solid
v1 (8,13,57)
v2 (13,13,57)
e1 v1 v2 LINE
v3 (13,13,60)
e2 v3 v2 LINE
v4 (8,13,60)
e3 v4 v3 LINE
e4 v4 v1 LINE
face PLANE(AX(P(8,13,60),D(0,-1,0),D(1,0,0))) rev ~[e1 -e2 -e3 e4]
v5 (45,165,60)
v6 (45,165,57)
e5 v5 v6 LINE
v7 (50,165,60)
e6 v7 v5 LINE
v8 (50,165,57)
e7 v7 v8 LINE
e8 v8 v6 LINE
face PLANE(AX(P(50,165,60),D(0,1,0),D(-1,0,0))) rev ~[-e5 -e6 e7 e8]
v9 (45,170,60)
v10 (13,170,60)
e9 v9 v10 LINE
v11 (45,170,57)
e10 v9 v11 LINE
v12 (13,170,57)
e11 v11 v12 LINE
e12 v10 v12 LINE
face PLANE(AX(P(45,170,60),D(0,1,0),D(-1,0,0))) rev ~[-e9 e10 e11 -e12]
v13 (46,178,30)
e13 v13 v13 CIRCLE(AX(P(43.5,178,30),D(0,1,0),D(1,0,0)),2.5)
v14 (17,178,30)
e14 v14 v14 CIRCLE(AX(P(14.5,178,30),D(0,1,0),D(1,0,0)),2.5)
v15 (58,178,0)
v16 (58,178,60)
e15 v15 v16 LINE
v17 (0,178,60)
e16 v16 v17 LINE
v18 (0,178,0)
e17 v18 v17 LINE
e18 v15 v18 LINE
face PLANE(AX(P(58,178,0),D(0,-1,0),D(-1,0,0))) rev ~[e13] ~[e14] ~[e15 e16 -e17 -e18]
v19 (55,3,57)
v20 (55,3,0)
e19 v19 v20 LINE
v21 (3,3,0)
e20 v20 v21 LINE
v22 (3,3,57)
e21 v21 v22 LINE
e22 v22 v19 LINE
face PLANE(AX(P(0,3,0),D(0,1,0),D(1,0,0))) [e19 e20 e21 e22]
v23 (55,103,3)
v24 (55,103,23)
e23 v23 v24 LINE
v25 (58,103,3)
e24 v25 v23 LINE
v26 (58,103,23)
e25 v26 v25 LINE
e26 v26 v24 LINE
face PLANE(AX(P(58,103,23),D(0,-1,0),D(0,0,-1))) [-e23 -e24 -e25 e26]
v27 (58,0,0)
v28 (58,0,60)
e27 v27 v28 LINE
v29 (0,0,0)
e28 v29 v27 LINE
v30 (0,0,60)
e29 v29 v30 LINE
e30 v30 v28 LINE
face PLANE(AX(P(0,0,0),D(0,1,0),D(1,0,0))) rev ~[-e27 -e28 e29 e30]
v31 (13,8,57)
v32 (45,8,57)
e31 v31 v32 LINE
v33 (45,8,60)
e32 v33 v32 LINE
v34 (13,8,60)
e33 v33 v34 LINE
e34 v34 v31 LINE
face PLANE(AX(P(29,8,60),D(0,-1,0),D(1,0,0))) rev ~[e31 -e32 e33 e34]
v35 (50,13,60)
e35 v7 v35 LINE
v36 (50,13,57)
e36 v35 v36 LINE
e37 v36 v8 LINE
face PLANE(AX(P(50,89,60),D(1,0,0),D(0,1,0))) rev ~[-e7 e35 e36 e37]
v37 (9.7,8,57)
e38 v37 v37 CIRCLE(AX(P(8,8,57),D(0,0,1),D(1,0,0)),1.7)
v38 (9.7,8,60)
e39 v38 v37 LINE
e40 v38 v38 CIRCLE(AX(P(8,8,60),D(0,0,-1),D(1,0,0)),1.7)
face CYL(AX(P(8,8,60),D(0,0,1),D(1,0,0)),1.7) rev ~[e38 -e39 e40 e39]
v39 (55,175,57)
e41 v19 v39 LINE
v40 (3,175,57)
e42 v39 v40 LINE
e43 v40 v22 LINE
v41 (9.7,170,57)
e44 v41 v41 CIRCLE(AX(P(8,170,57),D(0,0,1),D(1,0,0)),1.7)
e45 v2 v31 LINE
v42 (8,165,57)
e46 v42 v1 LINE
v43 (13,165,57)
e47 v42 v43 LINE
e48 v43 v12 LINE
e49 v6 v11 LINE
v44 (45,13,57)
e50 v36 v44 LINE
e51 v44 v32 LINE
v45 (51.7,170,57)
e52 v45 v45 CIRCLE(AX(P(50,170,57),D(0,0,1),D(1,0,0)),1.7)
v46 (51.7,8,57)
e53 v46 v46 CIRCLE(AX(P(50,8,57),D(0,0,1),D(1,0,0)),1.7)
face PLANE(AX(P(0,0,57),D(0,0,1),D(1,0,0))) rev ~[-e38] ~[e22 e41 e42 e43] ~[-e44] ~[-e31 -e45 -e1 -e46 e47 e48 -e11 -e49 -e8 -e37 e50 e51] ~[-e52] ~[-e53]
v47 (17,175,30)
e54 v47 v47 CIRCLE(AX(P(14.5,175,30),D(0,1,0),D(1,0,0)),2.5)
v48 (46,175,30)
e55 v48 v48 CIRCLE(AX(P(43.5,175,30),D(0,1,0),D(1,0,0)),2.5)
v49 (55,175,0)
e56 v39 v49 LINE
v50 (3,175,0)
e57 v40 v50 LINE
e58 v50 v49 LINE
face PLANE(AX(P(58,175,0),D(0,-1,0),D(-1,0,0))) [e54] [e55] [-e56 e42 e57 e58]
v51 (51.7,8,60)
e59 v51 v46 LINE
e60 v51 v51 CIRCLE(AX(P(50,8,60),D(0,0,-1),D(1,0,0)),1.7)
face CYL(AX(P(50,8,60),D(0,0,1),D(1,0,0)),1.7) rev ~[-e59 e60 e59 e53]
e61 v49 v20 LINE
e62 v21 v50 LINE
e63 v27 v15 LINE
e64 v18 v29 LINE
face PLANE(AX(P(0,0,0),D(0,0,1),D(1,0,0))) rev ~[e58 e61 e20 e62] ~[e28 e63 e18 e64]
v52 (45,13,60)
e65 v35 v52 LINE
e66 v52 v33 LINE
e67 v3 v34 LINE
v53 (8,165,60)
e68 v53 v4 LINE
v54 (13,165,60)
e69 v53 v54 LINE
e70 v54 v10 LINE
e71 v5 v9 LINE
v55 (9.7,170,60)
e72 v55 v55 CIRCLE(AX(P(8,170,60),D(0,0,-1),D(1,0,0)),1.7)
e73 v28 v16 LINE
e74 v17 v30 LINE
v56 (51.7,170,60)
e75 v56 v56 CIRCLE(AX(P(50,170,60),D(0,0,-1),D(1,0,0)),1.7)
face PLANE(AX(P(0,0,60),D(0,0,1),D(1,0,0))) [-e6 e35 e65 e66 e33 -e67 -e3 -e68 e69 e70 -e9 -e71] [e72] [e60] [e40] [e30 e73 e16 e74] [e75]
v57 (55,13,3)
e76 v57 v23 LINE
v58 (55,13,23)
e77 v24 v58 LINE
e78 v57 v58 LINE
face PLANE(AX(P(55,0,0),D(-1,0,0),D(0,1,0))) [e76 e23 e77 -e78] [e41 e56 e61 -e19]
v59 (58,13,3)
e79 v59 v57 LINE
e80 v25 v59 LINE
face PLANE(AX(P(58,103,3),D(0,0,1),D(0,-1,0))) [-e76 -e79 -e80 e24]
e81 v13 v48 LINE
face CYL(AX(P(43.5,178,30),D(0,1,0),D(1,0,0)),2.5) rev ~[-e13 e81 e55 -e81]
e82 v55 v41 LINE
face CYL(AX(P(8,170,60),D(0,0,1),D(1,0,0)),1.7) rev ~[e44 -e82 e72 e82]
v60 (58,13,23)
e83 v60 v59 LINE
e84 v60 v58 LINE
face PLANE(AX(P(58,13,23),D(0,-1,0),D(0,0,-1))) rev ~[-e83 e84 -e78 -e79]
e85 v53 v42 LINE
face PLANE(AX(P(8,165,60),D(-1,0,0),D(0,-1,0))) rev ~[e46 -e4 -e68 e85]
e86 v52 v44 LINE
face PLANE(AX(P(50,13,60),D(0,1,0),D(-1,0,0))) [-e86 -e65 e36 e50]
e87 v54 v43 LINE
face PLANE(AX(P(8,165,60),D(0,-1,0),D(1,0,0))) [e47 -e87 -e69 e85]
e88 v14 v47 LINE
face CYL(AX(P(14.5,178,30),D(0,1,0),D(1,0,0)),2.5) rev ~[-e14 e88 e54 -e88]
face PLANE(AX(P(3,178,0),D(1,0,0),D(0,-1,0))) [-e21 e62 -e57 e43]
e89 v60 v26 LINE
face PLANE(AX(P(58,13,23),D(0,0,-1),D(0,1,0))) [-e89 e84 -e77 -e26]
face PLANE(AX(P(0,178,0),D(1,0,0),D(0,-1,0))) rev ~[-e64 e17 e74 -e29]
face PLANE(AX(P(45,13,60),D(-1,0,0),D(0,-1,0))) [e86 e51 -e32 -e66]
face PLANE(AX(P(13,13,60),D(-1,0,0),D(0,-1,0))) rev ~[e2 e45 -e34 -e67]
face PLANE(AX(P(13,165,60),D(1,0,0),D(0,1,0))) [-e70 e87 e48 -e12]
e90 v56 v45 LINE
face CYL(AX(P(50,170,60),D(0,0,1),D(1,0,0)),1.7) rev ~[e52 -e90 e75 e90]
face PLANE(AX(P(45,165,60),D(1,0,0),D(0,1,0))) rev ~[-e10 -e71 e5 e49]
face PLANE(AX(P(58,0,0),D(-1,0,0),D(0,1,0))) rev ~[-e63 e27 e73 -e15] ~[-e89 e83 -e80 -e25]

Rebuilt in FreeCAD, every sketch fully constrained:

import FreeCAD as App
import Part
import Sketcher
from FreeCAD import Vector
Q = App.Units.Quantity


def faces_at(feature, points):
    """Names of the faces that lie closest to the given points."""
    faces = feature.Shape.Faces
    near = lambda p: min(range(len(faces)), key=lambda i: faces[i].distToShape(Part.Vertex(*p))[0])
    return sorted({f"Face{near(p) + 1}" for p in points})

doc = App.newDocument("Part")
params = doc.addObject("Spreadsheet::Sheet", "Params")
for row, (alias, value) in enumerate([
    ("sketch1_width", "58 mm"),
    ("sketch1_height", "178 mm"),
    ("pad1_length", "60 mm"),
    ("thickness_wall", "3 mm"),
    ("sketch2_diameter", "3.4 mm"),
    ("sketch2_width", "5 mm"),
    ("sketch2_width2", "32 mm"),
    ("sketch2_height", "152 mm"),
    ("pocket1_length", "3 mm"),
    ("sketch3_height", "20 mm"),
    ("sketch3_width", "90 mm"),
    ("pocket2_length", "4 mm"),
    ("sketch4_diameter", "5 mm"),
    ("pocket3_length", "4 mm"),
], start=1):
    params.set(f"A{row}", alias)
    params.set(f"B{row}", "=" + value)
    params.setAlias(f"B{row}", alias)

body = doc.addObject("PartDesign::Body", "Body")

# Sketch on XY plane
sketch1 = body.newObject("Sketcher::SketchObject", "Sketch")
sketch1.AttachmentSupport = (doc.getObject("XY_Plane"), [""])
sketch1.MapMode = "FlatFace"
sketch1.addGeometry([
    Part.LineSegment(Vector(0, 178, 0), Vector(0, 0, 0)),
    Part.LineSegment(Vector(0, 0, 0), Vector(58, 0, 0)),
    Part.LineSegment(Vector(58, 0, 0), Vector(58, 178, 0)),
    Part.LineSegment(Vector(58, 178, 0), Vector(0, 178, 0)),
], False)
sketch1.addConstraint([
    Sketcher.Constraint("Coincident", 0, 2, 1, 1),
    Sketcher.Constraint("Coincident", 1, 2, 2, 1),
    Sketcher.Constraint("Coincident", 2, 2, 3, 1),
    Sketcher.Constraint("Coincident", 3, 2, 0, 1),
    Sketcher.Constraint("Vertical", 0),
    Sketcher.Constraint("Horizontal", 1),
    Sketcher.Constraint("Vertical", 2),
    Sketcher.Constraint("Horizontal", 3),
    Sketcher.Constraint("Coincident", 0, 2, -1, 1),
    Sketcher.Constraint("DistanceX", 1, 1, 1, 2, Q("58 mm")),
    Sketcher.Constraint("DistanceY", 0, 2, 0, 1, Q("178 mm")),
])
sketch1.setExpression("Constraints[9]", "Params.sketch1_width")
sketch1.setExpression("Constraints[10]", "Params.sketch1_height")
pad1 = body.newObject("PartDesign::Pad", "Pad")
pad1.Profile = sketch1
pad1.setExpression("Length", "Params.pad1_length")
doc.recompute()

thickness = body.newObject("PartDesign::Thickness", "Thickness")
thickness.Base = (pad1, faces_at(pad1, [(19.333, 118.667, 0)]))
thickness.setExpression("Value", "Params.thickness_wall")
thickness.Reversed = True
thickness.Join = "Intersection"

# Sketch on XY plane
sketch2 = body.newObject("Sketcher::SketchObject", "Sketch001")
sketch2.AttachmentSupport = (doc.getObject("XY_Plane"), [""])
sketch2.MapMode = "FlatFace"
sketch2.AttachmentOffset = App.Placement(Vector(0, 0, 60), App.Rotation())
sketch2.addGeometry([
    Part.Circle(Vector(8, 8, 0), Vector(0, 0, 1), 1.7),  # 0
    Part.Circle(Vector(50, 170, 0), Vector(0, 0, 1), 1.7),  # 1
    Part.LineSegment(Vector(8, 165, 0), Vector(8, 13, 0)),  # 2
    Part.LineSegment(Vector(8, 13, 0), Vector(13, 13, 0)),  # 3
    Part.LineSegment(Vector(13, 13, 0), Vector(13, 8, 0)),  # 4
    Part.LineSegment(Vector(13, 8, 0), Vector(45, 8, 0)),  # 5
    Part.LineSegment(Vector(45, 8, 0), Vector(45, 13, 0)),  # 6
    Part.LineSegment(Vector(45, 13, 0), Vector(50, 13, 0)),  # 7
    Part.LineSegment(Vector(50, 13, 0), Vector(50, 165, 0)),  # 8
    Part.LineSegment(Vector(50, 165, 0), Vector(45, 165, 0)),  # 9
    Part.LineSegment(Vector(45, 165, 0), Vector(45, 170, 0)),  # 10
    Part.LineSegment(Vector(45, 170, 0), Vector(13, 170, 0)),  # 11
    Part.LineSegment(Vector(13, 170, 0), Vector(13, 165, 0)),  # 12
    Part.LineSegment(Vector(13, 165, 0), Vector(8, 165, 0)),  # 13
    Part.Circle(Vector(8, 170, 0), Vector(0, 0, 1), 1.7),  # 14
    Part.Circle(Vector(50, 8, 0), Vector(0, 0, 1), 1.7),  # 15
], False)
sketch2.addConstraint([
    Sketcher.Constraint("Coincident", 2, 2, 3, 1),
    Sketcher.Constraint("Coincident", 3, 2, 4, 1),
    Sketcher.Constraint("Coincident", 4, 2, 5, 1),
    Sketcher.Constraint("Coincident", 5, 2, 6, 1),
    Sketcher.Constraint("Coincident", 6, 2, 7, 1),
    Sketcher.Constraint("Coincident", 7, 2, 8, 1),
    Sketcher.Constraint("Coincident", 8, 2, 9, 1),
    Sketcher.Constraint("Coincident", 9, 2, 10, 1),
    Sketcher.Constraint("Coincident", 10, 2, 11, 1),
    Sketcher.Constraint("Coincident", 11, 2, 12, 1),
    Sketcher.Constraint("Coincident", 12, 2, 13, 1),
    Sketcher.Constraint("Coincident", 13, 2, 2, 1),
    Sketcher.Constraint("Vertical", 2),
    Sketcher.Constraint("Horizontal", 3),
    Sketcher.Constraint("Vertical", 4),
    Sketcher.Constraint("Horizontal", 5),
    Sketcher.Constraint("Vertical", 6),
    Sketcher.Constraint("Horizontal", 7),
    Sketcher.Constraint("Vertical", 8),
    Sketcher.Constraint("Horizontal", 9),
    Sketcher.Constraint("Vertical", 10),
    Sketcher.Constraint("Horizontal", 11),
    Sketcher.Constraint("Vertical", 12),
    Sketcher.Constraint("Horizontal", 13),
    Sketcher.Constraint("Equal", 0, 1),
    Sketcher.Constraint("Equal", 1, 14),
    Sketcher.Constraint("Equal", 14, 15),
    Sketcher.Constraint("Horizontal", 1, 3, 14, 3),
    Sketcher.Constraint("Horizontal", 0, 3, 15, 3),
    Sketcher.Constraint("Horizontal", 15, 3, 4, 2),
    Sketcher.Constraint("Horizontal", 3, 2, 6, 2),
    Sketcher.Constraint("Horizontal", 14, 3, 10, 2),
    Sketcher.Constraint("Horizontal", 9, 2, 12, 2),
    Sketcher.Constraint("Vertical", 0, 3, 14, 3),
    Sketcher.Constraint("Vertical", 1, 3, 15, 3),
    Sketcher.Constraint("Vertical", 14, 3, 2, 2),
    Sketcher.Constraint("Vertical", 15, 3, 7, 2),
    Sketcher.Constraint("Vertical", 6, 2, 9, 2),
    Sketcher.Constraint("Vertical", 4, 2, 11, 2),
    Sketcher.Constraint("Equal", 3, 7),
    Sketcher.Constraint("Equal", 13, 4),
    Sketcher.Constraint("Equal", 6, 10),
    Sketcher.Constraint("Diameter", 0, Q("3.4 mm")),
    Sketcher.Constraint("DistanceX", 3, 1, 3, 2, Q("5 mm")),
    Sketcher.Constraint("DistanceX", 5, 1, 5, 2, Q("32 mm")),
    Sketcher.Constraint("DistanceY", 2, 2, 2, 1, Q("152 mm")),
    Sketcher.Constraint("DistanceX", -1, 1, 0, 3, Q("8 mm")),
    Sketcher.Constraint("DistanceY", -1, 1, 0, 3, Q("8 mm")),
])
sketch2.setExpression("Constraints[42]", "Params.sketch2_diameter")
sketch2.setExpression("Constraints[43]", "Params.sketch2_width")
sketch2.setExpression("Constraints[44]", "Params.sketch2_width2")
sketch2.setExpression("Constraints[45]", "Params.sketch2_height")
pocket1 = body.newObject("PartDesign::Pocket", "Pocket")
pocket1.Profile = sketch2
pocket1.setExpression("Length", "Params.pocket1_length")

# Sketch on YZ plane
sketch3 = body.newObject("Sketcher::SketchObject", "Sketch002")
sketch3.AttachmentSupport = (doc.getObject("YZ_Plane"), [""])
sketch3.MapMode = "FlatFace"
sketch3.AttachmentOffset = App.Placement(Vector(0, 0, 58), App.Rotation())
sketch3.addGeometry([
    Part.LineSegment(Vector(13, 23, 0), Vector(13, 3, 0)),
    Part.LineSegment(Vector(13, 3, 0), Vector(103, 3, 0)),
    Part.LineSegment(Vector(103, 3, 0), Vector(103, 23, 0)),
    Part.LineSegment(Vector(103, 23, 0), Vector(13, 23, 0)),
], False)
sketch3.addConstraint([
    Sketcher.Constraint("Coincident", 0, 2, 1, 1),
    Sketcher.Constraint("Coincident", 1, 2, 2, 1),
    Sketcher.Constraint("Coincident", 2, 2, 3, 1),
    Sketcher.Constraint("Coincident", 3, 2, 0, 1),
    Sketcher.Constraint("Vertical", 0),
    Sketcher.Constraint("Horizontal", 1),
    Sketcher.Constraint("Vertical", 2),
    Sketcher.Constraint("Horizontal", 3),
    Sketcher.Constraint("DistanceY", 0, 2, 0, 1, Q("20 mm")),
    Sketcher.Constraint("DistanceY", -1, 1, 0, 2, Q("3 mm")),
    Sketcher.Constraint("DistanceX", 1, 1, 1, 2, Q("90 mm")),
    Sketcher.Constraint("DistanceX", -1, 1, 0, 2, Q("13 mm")),
])
sketch3.setExpression("Constraints[8]", "Params.sketch3_height")
sketch3.setExpression("Constraints[10]", "Params.sketch3_width")
pocket2 = body.newObject("PartDesign::Pocket", "Pocket001")
pocket2.Profile = sketch3
pocket2.setExpression("Length", "Params.pocket2_length")

# Sketch on XZ plane
sketch4 = body.newObject("Sketcher::SketchObject", "Sketch003")
sketch4.AttachmentSupport = (doc.getObject("XZ_Plane"), [""])
sketch4.MapMode = "FlatFace"
sketch4.AttachmentOffset = App.Placement(Vector(0, 0, -178), App.Rotation())
sketch4.addGeometry([
    Part.Circle(Vector(43.5, 30, 0), Vector(0, 0, 1), 2.5),
    Part.Circle(Vector(14.5, 30, 0), Vector(0, 0, 1), 2.5),
], False)
sketch4.addConstraint([
    Sketcher.Constraint("Equal", 0, 1),
    Sketcher.Constraint("Horizontal", 0, 3, 1, 3),
    Sketcher.Constraint("Diameter", 0, Q("5 mm")),
    Sketcher.Constraint("DistanceY", -1, 1, 0, 3, Q("30 mm")),
    Sketcher.Constraint("DistanceX", 1, 3, 0, 3, Q("29 mm")),
    Sketcher.Constraint("DistanceX", -1, 1, 0, 3, Q("43.5 mm")),
])
sketch4.setExpression("Constraints[2]", "Params.sketch4_diameter")
pocket3 = body.newObject("PartDesign::Pocket", "Pocket002")
pocket3.Profile = sketch4
pocket3.setExpression("Length", "Params.pocket3_length")
pocket3.Reversed = True

doc.recompute()
